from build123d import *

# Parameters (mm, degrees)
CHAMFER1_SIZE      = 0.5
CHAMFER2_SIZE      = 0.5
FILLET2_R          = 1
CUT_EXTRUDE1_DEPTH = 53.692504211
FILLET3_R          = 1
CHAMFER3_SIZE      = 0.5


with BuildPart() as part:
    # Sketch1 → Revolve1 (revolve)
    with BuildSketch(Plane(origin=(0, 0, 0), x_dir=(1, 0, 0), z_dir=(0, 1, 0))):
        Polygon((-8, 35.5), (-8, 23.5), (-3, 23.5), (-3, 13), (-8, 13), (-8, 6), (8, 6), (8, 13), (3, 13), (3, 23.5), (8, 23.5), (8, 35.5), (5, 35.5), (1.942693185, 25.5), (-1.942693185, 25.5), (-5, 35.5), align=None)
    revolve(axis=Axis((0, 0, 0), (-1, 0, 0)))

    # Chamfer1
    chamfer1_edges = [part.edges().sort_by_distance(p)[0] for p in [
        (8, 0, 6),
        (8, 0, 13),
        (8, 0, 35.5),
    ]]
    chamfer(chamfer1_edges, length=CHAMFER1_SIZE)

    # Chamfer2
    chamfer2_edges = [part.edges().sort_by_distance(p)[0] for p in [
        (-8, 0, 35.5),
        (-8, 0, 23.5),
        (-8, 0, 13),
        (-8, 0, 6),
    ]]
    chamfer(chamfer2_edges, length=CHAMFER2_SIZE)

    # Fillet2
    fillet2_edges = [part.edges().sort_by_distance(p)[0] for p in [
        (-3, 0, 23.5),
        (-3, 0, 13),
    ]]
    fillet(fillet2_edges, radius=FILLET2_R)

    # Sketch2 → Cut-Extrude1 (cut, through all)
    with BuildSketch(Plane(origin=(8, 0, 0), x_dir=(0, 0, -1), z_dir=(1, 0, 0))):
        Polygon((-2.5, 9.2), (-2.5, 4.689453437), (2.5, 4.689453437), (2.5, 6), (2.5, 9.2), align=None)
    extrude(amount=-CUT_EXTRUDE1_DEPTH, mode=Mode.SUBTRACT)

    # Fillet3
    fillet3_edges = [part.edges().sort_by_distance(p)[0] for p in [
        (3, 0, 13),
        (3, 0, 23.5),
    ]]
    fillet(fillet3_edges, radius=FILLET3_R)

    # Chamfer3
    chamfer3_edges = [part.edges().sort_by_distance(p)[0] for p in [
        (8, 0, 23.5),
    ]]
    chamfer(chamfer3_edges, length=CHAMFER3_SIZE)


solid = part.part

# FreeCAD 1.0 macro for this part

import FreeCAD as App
import Part
import Sketcher

V = App.Vector
Q = App.Units.Quantity


def edges_at(feature, points):
    """Names of the edges that pass closest to the given points."""
    edges = feature.Shape.Edges
    near = lambda p: min(range(len(edges)), key=lambda i: edges[i].distToShape(Part.Vertex(*p))[0])
    return sorted({f"Edge{near(p) + 1}" for p in points})

doc = App.newDocument("Part")
body = doc.addObject("PartDesign::Body", "Body")

sketch1 = doc.addObject("Sketcher::SketchObject", "Sketch")
body.addObject(sketch1)
sketch1.AttachmentSupport = (doc.XZ_Plane, [""])
sketch1.MapMode = "FlatFace"
sketch1.addGeometry([
    Part.LineSegment(V(-8, -35.5, 0), V(-8, -23.5, 0)),
    Part.LineSegment(V(-8, -23.5, 0), V(-3, -23.5, 0)),
    Part.LineSegment(V(-3, -23.5, 0), V(-3, -13, 0)),
    Part.LineSegment(V(-3, -13, 0), V(-8, -13, 0)),
    Part.LineSegment(V(-8, -13, 0), V(-8, -6, 0)),
    Part.LineSegment(V(-8, -6, 0), V(8, -6, 0)),
    Part.LineSegment(V(8, -6, 0), V(8, -13, 0)),
    Part.LineSegment(V(8, -13, 0), V(3, -13, 0)),
    Part.LineSegment(V(3, -13, 0), V(3, -23.5, 0)),
    Part.LineSegment(V(3, -23.5, 0), V(8, -23.5, 0)),
    Part.LineSegment(V(8, -23.5, 0), V(8, -35.5, 0)),
    Part.LineSegment(V(8, -35.5, 0), V(5, -35.5, 0)),
    Part.LineSegment(V(5, -35.5, 0), V(1.9, -25.5, 0)),
    Part.LineSegment(V(1.9, -25.5, 0), V(-1.9, -25.5, 0)),
    Part.LineSegment(V(-1.9, -25.5, 0), V(-5, -35.5, 0)),
    Part.LineSegment(V(-5, -35.5, 0), V(-8, -35.5, 0)),
], False)
sketch1.addConstraint([
    Sketcher.Constraint("Coincident", 0, 2, 1, 1),
    Sketcher.Constraint("Coincident", 1, 2, 2, 1),
    Sketcher.Constraint("Coincident", 2, 2, 3, 1),
    Sketcher.Constraint("Coincident", 3, 2, 4, 1),
    Sketcher.Constraint("Coincident", 4, 2, 5, 1),
    Sketcher.Constraint("Coincident", 5, 2, 6, 1),
    Sketcher.Constraint("Coincident", 6, 2, 7, 1),
    Sketcher.Constraint("Coincident", 7, 2, 8, 1),
    Sketcher.Constraint("Coincident", 8, 2, 9, 1),
    Sketcher.Constraint("Coincident", 9, 2, 10, 1),
    Sketcher.Constraint("Coincident", 10, 2, 11, 1),
    Sketcher.Constraint("Coincident", 11, 2, 12, 1),
    Sketcher.Constraint("Coincident", 12, 2, 13, 1),
    Sketcher.Constraint("Coincident", 13, 2, 14, 1),
    Sketcher.Constraint("Coincident", 14, 2, 15, 1),
    Sketcher.Constraint("Coincident", 15, 2, 0, 1),
    Sketcher.Constraint("Vertical", 0),
    Sketcher.Constraint("Horizontal", 1),
    Sketcher.Constraint("Vertical", 2),
    Sketcher.Constraint("Horizontal", 3),
    Sketcher.Constraint("Vertical", 4),
    Sketcher.Constraint("Horizontal", 5),
    Sketcher.Constraint("Vertical", 6),
    Sketcher.Constraint("Horizontal", 7),
    Sketcher.Constraint("Vertical", 8),
    Sketcher.Constraint("Horizontal", 9),
    Sketcher.Constraint("Vertical", 10),
    Sketcher.Constraint("Horizontal", 11),
    Sketcher.Constraint("Horizontal", 13),
    Sketcher.Constraint("Horizontal", 15),
    Sketcher.Constraint("Symmetric", 3, 2, 6, 2, -2),
    Sketcher.Constraint("Symmetric", 1, 2, 8, 2, -2),
    Sketcher.Constraint("Symmetric", 11, 2, 14, 2, -2),
    Sketcher.Constraint("Vertical", 0, 2, 3, 2),
    Sketcher.Constraint("Vertical", 6, 2, 9, 2),
    Sketcher.Constraint("Equal", 12, 14),
    Sketcher.Constraint("DistanceX", 1, 1, 1, 2, 5.0),
    Sketcher.Constraint("DistanceX", 5, 1, 5, 2, 16.0),
    Sketcher.Constraint("DistanceX", 11, 2, 11, 1, 3.0),
    Sketcher.Constraint("DistanceY", 0, 1, 0, 2, 12.0),
    Sketcher.Constraint("DistanceY", 4, 1, 4, 2, 7.0),
    Sketcher.Constraint("Angle", 12, Q("107 deg")),
    Sketcher.Constraint("DistanceY", 2, 1, 2, 2, 10.5),
    Sketcher.Constraint("DistanceY", 2, 2, -1, 1, 13.0),
    Sketcher.Constraint("DistanceY", 12, 2, 8, 2, 2.0),
])
revolution = doc.addObject("PartDesign::Revolution", "Revolution")
body.addObject(revolution)
revolution.Profile = sketch1
revolution.ReferenceAxis = (sketch1, ["H_Axis"])
revolution.Angle = 360
doc.recompute()

chamfer = doc.addObject("PartDesign::Chamfer", "Chamfer")
body.addObject(chamfer)
chamfer.Base = (revolution, edges_at(revolution, [(8, 0, 6), (8, 0, 13), (8, 0, 35.5)]))
chamfer.Size = 0.5
doc.recompute()

chamfer2 = doc.addObject("PartDesign::Chamfer", "Chamfer001")
body.addObject(chamfer2)
chamfer2.Base = (chamfer, edges_at(chamfer, [
    (-8, 0, 35.5),
    (-8, 0, 23.5),
    (-8, 0, 13),
    (-8, 0, 6),
]))
chamfer2.Size = 0.5
doc.recompute()

fillet = doc.addObject("PartDesign::Fillet", "Fillet")
body.addObject(fillet)
fillet.Base = (chamfer2, edges_at(chamfer2, [(-3, 0, 23.5), (-3, 0, 13)]))
fillet.Radius = 1

sketch2 = doc.addObject("Sketcher::SketchObject", "Sketch001")
body.addObject(sketch2)
sketch2.AttachmentSupport = (doc.YZ_Plane, [""])
sketch2.MapMode = "FlatFace"
sketch2.AttachmentOffset = App.Placement(V(0, 0, 8), App.Rotation())
sketch2.addGeometry([
    Part.LineSegment(V(9.2, 2.5, 0), V(4.7, 2.5, 0)),
    Part.LineSegment(V(4.7, 2.5, 0), V(4.7, -2.5, 0)),
    Part.LineSegment(V(4.7, -2.5, 0), V(9.2, -2.5, 0)),
    Part.LineSegment(V(9.2, -2.5, 0), V(9.2, 2.5, 0)),
], False)
sketch2.addConstraint([
    Sketcher.Constraint("Coincident", 0, 2, 1, 1),
    Sketcher.Constraint("Coincident", 1, 2, 2, 1),
    Sketcher.Constraint("Coincident", 2, 2, 3, 1),
    Sketcher.Constraint("Coincident", 3, 2, 0, 1),
    Sketcher.Constraint("Horizontal", 0),
    Sketcher.Constraint("Vertical", 1),
    Sketcher.Constraint("Horizontal", 2),
    Sketcher.Constraint("Vertical", 3),
    Sketcher.Constraint("DistanceY", 1, 2, 1, 1, 5.0),
    Sketcher.Constraint("DistanceY", -1, 1, 0, 2, 2.5),
    Sketcher.Constraint("DistanceX", -1, 1, 2, 2, 9.2),
    Sketcher.Constraint("DistanceX", 0, 2, 0, 1, 4.510547),
])
pocket1 = doc.addObject("PartDesign::Pocket", "Pocket")
body.addObject(pocket1)
pocket1.Profile = sketch2
pocket1.Type = "ThroughAll"
doc.recompute()

fillet2 = doc.addObject("PartDesign::Fillet", "Fillet001")
body.addObject(fillet2)
fillet2.Base = (pocket1, edges_at(pocket1, [(3, 0, 13), (3, 0, 23.5)]))
fillet2.Radius = 1
doc.recompute()

chamfer3 = doc.addObject("PartDesign::Chamfer", "Chamfer002")
body.addObject(chamfer3)
chamfer3.Base = (fillet2, edges_at(fillet2, [(8, 0, 23.5)]))
chamfer3.Size = 0.5

doc.recompute()
